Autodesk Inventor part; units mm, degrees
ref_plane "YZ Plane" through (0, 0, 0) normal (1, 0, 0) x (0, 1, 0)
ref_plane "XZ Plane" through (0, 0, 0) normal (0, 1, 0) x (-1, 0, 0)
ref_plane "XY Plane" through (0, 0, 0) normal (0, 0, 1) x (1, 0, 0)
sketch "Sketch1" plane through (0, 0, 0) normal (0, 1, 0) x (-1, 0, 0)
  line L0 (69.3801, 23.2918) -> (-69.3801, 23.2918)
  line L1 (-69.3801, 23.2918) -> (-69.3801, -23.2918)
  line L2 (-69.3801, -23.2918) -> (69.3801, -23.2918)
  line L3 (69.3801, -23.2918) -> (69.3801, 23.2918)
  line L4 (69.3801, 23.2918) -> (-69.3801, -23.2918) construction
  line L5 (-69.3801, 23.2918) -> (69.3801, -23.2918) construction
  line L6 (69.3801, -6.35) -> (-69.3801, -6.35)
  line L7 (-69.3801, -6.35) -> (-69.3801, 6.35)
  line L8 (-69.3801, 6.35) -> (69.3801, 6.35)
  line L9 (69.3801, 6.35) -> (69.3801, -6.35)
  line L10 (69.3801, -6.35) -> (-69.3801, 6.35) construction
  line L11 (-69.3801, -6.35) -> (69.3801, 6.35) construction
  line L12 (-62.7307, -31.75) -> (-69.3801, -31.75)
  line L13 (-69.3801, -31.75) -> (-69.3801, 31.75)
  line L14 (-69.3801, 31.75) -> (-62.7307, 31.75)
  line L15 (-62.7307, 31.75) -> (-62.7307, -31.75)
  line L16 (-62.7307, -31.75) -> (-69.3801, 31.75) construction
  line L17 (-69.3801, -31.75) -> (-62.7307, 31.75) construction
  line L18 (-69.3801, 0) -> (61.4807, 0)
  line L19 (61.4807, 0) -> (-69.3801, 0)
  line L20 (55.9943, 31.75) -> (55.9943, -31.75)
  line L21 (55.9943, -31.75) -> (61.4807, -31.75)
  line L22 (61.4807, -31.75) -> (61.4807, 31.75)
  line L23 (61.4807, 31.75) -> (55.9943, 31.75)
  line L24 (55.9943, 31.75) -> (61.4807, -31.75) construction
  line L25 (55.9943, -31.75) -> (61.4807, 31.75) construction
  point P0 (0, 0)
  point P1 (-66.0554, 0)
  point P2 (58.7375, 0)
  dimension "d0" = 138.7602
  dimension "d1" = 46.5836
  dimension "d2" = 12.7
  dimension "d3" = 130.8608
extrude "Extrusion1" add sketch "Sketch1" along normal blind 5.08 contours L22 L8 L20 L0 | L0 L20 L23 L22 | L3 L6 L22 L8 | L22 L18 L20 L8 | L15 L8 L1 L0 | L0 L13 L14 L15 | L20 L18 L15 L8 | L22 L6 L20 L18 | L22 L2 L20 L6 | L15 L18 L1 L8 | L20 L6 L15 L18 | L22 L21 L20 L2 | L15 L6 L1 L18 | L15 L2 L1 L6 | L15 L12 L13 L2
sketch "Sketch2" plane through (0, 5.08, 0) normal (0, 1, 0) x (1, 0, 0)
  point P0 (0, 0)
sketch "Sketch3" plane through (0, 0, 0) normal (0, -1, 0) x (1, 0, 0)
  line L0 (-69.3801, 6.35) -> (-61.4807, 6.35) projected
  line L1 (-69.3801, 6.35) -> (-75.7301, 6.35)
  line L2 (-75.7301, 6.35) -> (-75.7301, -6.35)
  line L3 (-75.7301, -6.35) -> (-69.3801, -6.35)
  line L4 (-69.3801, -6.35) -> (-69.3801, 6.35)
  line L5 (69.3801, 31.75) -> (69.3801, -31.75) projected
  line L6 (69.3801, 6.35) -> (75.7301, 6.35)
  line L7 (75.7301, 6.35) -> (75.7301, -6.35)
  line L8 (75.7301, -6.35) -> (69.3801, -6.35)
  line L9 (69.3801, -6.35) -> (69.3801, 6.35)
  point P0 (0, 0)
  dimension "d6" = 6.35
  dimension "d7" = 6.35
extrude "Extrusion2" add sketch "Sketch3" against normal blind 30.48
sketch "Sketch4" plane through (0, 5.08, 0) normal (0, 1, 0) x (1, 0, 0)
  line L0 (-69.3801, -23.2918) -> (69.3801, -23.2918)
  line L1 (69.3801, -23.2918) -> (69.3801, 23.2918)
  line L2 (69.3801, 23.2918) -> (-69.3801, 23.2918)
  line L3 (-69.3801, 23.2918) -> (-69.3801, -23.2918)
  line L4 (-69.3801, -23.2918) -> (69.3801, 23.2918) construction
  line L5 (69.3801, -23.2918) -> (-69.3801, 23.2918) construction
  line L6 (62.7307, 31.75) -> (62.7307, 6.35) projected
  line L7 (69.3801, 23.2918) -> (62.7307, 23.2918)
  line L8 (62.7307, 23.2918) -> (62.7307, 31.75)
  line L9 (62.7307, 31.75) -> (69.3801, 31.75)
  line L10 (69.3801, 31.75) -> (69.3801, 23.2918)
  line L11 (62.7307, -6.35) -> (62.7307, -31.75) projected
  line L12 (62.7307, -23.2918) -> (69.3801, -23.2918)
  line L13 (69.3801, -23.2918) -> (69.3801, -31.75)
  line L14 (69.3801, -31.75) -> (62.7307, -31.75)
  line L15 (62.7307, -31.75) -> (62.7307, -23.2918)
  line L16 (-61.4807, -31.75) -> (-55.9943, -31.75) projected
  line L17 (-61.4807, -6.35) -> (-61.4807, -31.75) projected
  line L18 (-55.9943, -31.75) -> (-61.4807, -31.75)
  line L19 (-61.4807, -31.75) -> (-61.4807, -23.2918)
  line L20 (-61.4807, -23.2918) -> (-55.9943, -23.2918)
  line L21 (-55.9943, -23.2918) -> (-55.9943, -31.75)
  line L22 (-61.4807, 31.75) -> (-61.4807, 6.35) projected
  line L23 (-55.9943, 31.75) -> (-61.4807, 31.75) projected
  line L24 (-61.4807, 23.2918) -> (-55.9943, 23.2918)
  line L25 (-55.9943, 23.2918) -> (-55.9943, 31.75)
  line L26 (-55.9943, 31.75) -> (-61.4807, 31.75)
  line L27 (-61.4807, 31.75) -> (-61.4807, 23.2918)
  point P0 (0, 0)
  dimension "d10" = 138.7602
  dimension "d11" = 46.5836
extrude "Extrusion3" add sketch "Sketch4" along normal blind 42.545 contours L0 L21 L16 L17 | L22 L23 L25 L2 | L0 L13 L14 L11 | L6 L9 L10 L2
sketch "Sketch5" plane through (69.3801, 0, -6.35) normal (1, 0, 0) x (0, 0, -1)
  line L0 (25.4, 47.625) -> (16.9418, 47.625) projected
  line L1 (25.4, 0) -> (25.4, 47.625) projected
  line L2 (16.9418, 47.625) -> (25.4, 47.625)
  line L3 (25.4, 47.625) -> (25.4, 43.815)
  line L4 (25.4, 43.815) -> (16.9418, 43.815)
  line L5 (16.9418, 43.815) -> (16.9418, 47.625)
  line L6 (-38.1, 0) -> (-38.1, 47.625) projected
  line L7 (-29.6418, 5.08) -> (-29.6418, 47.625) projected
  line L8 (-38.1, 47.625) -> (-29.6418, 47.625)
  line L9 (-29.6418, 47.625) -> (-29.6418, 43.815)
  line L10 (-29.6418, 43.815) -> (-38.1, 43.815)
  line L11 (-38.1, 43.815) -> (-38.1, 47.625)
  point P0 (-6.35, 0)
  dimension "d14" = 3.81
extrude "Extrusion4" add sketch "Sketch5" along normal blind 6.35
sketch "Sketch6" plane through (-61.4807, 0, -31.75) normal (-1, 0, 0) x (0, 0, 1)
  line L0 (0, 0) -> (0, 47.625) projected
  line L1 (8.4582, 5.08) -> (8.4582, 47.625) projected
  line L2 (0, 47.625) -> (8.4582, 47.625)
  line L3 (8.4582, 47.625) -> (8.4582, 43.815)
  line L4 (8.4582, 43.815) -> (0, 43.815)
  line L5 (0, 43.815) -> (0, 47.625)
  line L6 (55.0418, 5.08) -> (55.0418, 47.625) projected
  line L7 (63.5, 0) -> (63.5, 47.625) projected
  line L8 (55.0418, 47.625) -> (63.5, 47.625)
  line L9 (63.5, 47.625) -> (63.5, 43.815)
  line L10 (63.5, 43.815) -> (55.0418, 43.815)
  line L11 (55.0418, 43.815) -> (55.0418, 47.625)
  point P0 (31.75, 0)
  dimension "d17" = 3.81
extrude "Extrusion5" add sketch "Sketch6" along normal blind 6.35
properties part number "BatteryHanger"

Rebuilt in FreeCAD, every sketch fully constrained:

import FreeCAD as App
import Part
import Sketcher
Q = App.Units.Quantity

doc = App.newDocument("Part")
body = doc.addObject("PartDesign::Body", "Body")

# Sketch on XZ plane
sketch1 = body.newObject("Sketcher::SketchObject", "Sketch")
sketch1.AttachmentSupport = (doc.getObject("XZ_Plane"), [""])
sketch1.MapMode = "FlatFace"
sketch1.addGeometry(Part.LineSegment(App.Vector(-61, 6, 0), App.Vector(-61, 32, 0)), False)
sketch1.addGeometry(Part.LineSegment(App.Vector(-61, 32, 0), App.Vector(-56, 32, 0)), False)
sketch1.addGeometry(Part.LineSegment(App.Vector(-56, 32, 0), App.Vector(-56, 6, 0)), False)
sketch1.addGeometry(Part.LineSegment(App.Vector(-56, 6, 0), App.Vector(63, 6, 0)), False)
sketch1.addGeometry(Part.LineSegment(App.Vector(63, 6, 0), App.Vector(63, 32, 0)), False)
sketch1.addGeometry(Part.LineSegment(App.Vector(63, 32, 0), App.Vector(69, 32, 0)), False)
sketch1.addGeometry(Part.LineSegment(App.Vector(69, 32, 0), App.Vector(69, -32, 0)), False)
sketch1.addGeometry(Part.LineSegment(App.Vector(69, -32, 0), App.Vector(63, -32, 0)), False)
sketch1.addGeometry(Part.LineSegment(App.Vector(63, -32, 0), App.Vector(63, -6, 0)), False)
sketch1.addGeometry(Part.LineSegment(App.Vector(63, -6, 0), App.Vector(-56, -6, 0)), False)
sketch1.addGeometry(Part.LineSegment(App.Vector(-56, -6, 0), App.Vector(-56, -32, 0)), False)
sketch1.addGeometry(Part.LineSegment(App.Vector(-56, -32, 0), App.Vector(-61, -32, 0)), False)
sketch1.addGeometry(Part.LineSegment(App.Vector(-61, -32, 0), App.Vector(-61, -6, 0)), False)
sketch1.addGeometry(Part.LineSegment(App.Vector(-61, -6, 0), App.Vector(-69, -6, 0)), False)
sketch1.addGeometry(Part.LineSegment(App.Vector(-69, -6, 0), App.Vector(-69, 6, 0)), False)
sketch1.addGeometry(Part.LineSegment(App.Vector(-69, 6, 0), App.Vector(-61, 6, 0)), False)
sketch1.addConstraint(Sketcher.Constraint("Coincident", 0, 2, 1, 1))
sketch1.addConstraint(Sketcher.Constraint("Coincident", 1, 2, 2, 1))
sketch1.addConstraint(Sketcher.Constraint("Coincident", 2, 2, 3, 1))
sketch1.addConstraint(Sketcher.Constraint("Coincident", 3, 2, 4, 1))
sketch1.addConstraint(Sketcher.Constraint("Coincident", 4, 2, 5, 1))
sketch1.addConstraint(Sketcher.Constraint("Coincident", 5, 2, 6, 1))
sketch1.addConstraint(Sketcher.Constraint("Coincident", 6, 2, 7, 1))
sketch1.addConstraint(Sketcher.Constraint("Coincident", 7, 2, 8, 1))
sketch1.addConstraint(Sketcher.Constraint("Coincident", 8, 2, 9, 1))
sketch1.addConstraint(Sketcher.Constraint("Coincident", 9, 2, 10, 1))
sketch1.addConstraint(Sketcher.Constraint("Coincident", 10, 2, 11, 1))
sketch1.addConstraint(Sketcher.Constraint("Coincident", 11, 2, 12, 1))
sketch1.addConstraint(Sketcher.Constraint("Coincident", 12, 2, 13, 1))
sketch1.addConstraint(Sketcher.Constraint("Coincident", 13, 2, 14, 1))
sketch1.addConstraint(Sketcher.Constraint("Coincident", 14, 2, 15, 1))
sketch1.addConstraint(Sketcher.Constraint("Coincident", 15, 2, 0, 1))
sketch1.addConstraint(Sketcher.Constraint("Vertical", 0))
sketch1.addConstraint(Sketcher.Constraint("Horizontal", 1))
sketch1.addConstraint(Sketcher.Constraint("Vertical", 2))
sketch1.addConstraint(Sketcher.Constraint("Horizontal", 3))
sketch1.addConstraint(Sketcher.Constraint("Vertical", 4))
sketch1.addConstraint(Sketcher.Constraint("Horizontal", 5))
sketch1.addConstraint(Sketcher.Constraint("Vertical", 6))
sketch1.addConstraint(Sketcher.Constraint("Horizontal", 7))
sketch1.addConstraint(Sketcher.Constraint("Vertical", 8))
sketch1.addConstraint(Sketcher.Constraint("Horizontal", 9))
sketch1.addConstraint(Sketcher.Constraint("Vertical", 10))
sketch1.addConstraint(Sketcher.Constraint("Horizontal", 11))
sketch1.addConstraint(Sketcher.Constraint("Vertical", 12))
sketch1.addConstraint(Sketcher.Constraint("Horizontal", 13))
sketch1.addConstraint(Sketcher.Constraint("Vertical", 14))
sketch1.addConstraint(Sketcher.Constraint("Horizontal", 15))
sketch1.addConstraint(Sketcher.Constraint("Symmetric", 4, 2, 7, 2, -1))
sketch1.addConstraint(Sketcher.Constraint("Symmetric", 2, 2, 9, 2, -1))
sketch1.addConstraint(Sketcher.Constraint("Symmetric", 0, 2, 11, 2, -1))
sketch1.addConstraint(Sketcher.Constraint("Horizontal", 1, 2, 4, 2))
sketch1.addConstraint(Sketcher.Constraint("Horizontal", 9, 2, 12, 2))
sketch1.addConstraint(Sketcher.Constraint("Horizontal", 3, 2, 14, 2))
sketch1.addConstraint(Sketcher.Constraint("DistanceY", 14, 1, 14, 2, Q("0.5 in")))
sketch1.addConstraint(Sketcher.Constraint("DistanceY", 0, 1, 0, 2, Q("1 in")))
sketch1.addConstraint(Sketcher.Constraint("DistanceX", 0, 2, 5, 2, Q("5.152 in")))
sketch1.addConstraint(Sketcher.Constraint("DistanceX", 1, 1, 1, 2, Q("0.216 in")))
sketch1.addConstraint(Sketcher.Constraint("DistanceX", 13, 2, 13, 1, Q("0.311 in")))
sketch1.addConstraint(Sketcher.Constraint("DistanceX", 3, 1, 3, 2, Q("118.725 mm")))
sketch1.addConstraint(Sketcher.Constraint("DistanceX", 0, 2, -1, 1, Q("2.4205 in")))
pad1 = body.newObject("PartDesign::Pad", "Pad")
pad1.Profile = sketch1
pad1.Length = Q("0.2 in")
pad1.Reversed = True

# Sketch on XZ plane
sketch2 = body.newObject("Sketcher::SketchObject", "Sketch001")
sketch2.AttachmentSupport = (doc.getObject("XZ_Plane"), [""])
sketch2.MapMode = "FlatFace"
sketch2.addGeometry(Part.LineSegment(App.Vector(-69, -6, 0), App.Vector(-69, 6, 0)), False)
sketch2.addGeometry(Part.LineSegment(App.Vector(-69, 6, 0), App.Vector(-76, 6, 0)), False)
sketch2.addGeometry(Part.LineSegment(App.Vector(-76, 6, 0), App.Vector(-76, -6, 0)), False)
sketch2.addGeometry(Part.LineSegment(App.Vector(-76, -6, 0), App.Vector(-69, -6, 0)), False)
sketch2.addGeometry(Part.LineSegment(App.Vector(76, 6, 0), App.Vector(69, 6, 0)), False)
sketch2.addGeometry(Part.LineSegment(App.Vector(69, 6, 0), App.Vector(69, -6, 0)), False)
sketch2.addGeometry(Part.LineSegment(App.Vector(69, -6, 0), App.Vector(76, -6, 0)), False)
sketch2.addGeometry(Part.LineSegment(App.Vector(76, -6, 0), App.Vector(76, 6, 0)), False)
sketch2.addConstraint(Sketcher.Constraint("Coincident", 0, 2, 1, 1))
sketch2.addConstraint(Sketcher.Constraint("Coincident", 1, 2, 2, 1))
sketch2.addConstraint(Sketcher.Constraint("Coincident", 2, 2, 3, 1))
sketch2.addConstraint(Sketcher.Constraint("Coincident", 3, 2, 0, 1))
sketch2.addConstraint(Sketcher.Constraint("Coincident", 4, 2, 5, 1))
sketch2.addConstraint(Sketcher.Constraint("Coincident", 5, 2, 6, 1))
sketch2.addConstraint(Sketcher.Constraint("Coincident", 6, 2, 7, 1))
sketch2.addConstraint(Sketcher.Constraint("Coincident", 7, 2, 4, 1))
sketch2.addConstraint(Sketcher.Constraint("Vertical", 0))
sketch2.addConstraint(Sketcher.Constraint("Horizontal", 1))
sketch2.addConstraint(Sketcher.Constraint("Vertical", 2))
sketch2.addConstraint(Sketcher.Constraint("Horizontal", 3))
sketch2.addConstraint(Sketcher.Constraint("Horizontal", 4))
sketch2.addConstraint(Sketcher.Constraint("Vertical", 5))
sketch2.addConstraint(Sketcher.Constraint("Horizontal", 6))
sketch2.addConstraint(Sketcher.Constraint("Vertical", 7))
sketch2.addConstraint(Sketcher.Constraint("Symmetric", 3, 2, 4, 2, -1, 1))
sketch2.addConstraint(Sketcher.Constraint("Symmetric", 1, 2, 6, 2, -1, 1))
sketch2.addConstraint(Sketcher.Constraint("Horizontal", 1, 2, 4, 2))
sketch2.addConstraint(Sketcher.Constraint("DistanceX", 1, 2, 1, 1, Q("0.25 in")))
sketch2.addConstraint(Sketcher.Constraint("DistanceY", -1, 1, 0, 2, Q("0.25 in")))
sketch2.addConstraint(Sketcher.Constraint("DistanceX", 0, 2, 4, 2, Q("5.463 in")))
pad2 = body.newObject("PartDesign::Pad", "Pad001")
pad2.Profile = sketch2
pad2.Length = Q("1.2 in")
pad2.Reversed = True

# Sketch on XZ plane
sketch3 = body.newObject("Sketcher::SketchObject", "Sketch002")
sketch3.AttachmentSupport = (doc.getObject("XZ_Plane"), [""])
sketch3.MapMode = "FlatFace"
sketch3.AttachmentOffset = App.Placement(App.Vector(0, 0, -0.2 * 25.4), App.Rotation())
sketch3.addGeometry(Part.LineSegment(App.Vector(-56, 23, 0), App.Vector(-61, 23, 0)), False)
sketch3.addGeometry(Part.LineSegment(App.Vector(-61, 23, 0), App.Vector(-61, 32, 0)), False)
sketch3.addGeometry(Part.LineSegment(App.Vector(-61, 32, 0), App.Vector(-56, 32, 0)), False)
sketch3.addGeometry(Part.LineSegment(App.Vector(-56, 32, 0), App.Vector(-56, 23, 0)), False)
sketch3.addGeometry(Part.LineSegment(App.Vector(-61, -32, 0), App.Vector(-61, -23, 0)), False)
sketch3.addGeometry(Part.LineSegment(App.Vector(-61, -23, 0), App.Vector(-56, -23, 0)), False)
sketch3.addGeometry(Part.LineSegment(App.Vector(-56, -23, 0), App.Vector(-56, -32, 0)), False)
sketch3.addGeometry(Part.LineSegment(App.Vector(-56, -32, 0), App.Vector(-61, -32, 0)), False)
sketch3.addGeometry(Part.LineSegment(App.Vector(69, 23, 0), App.Vector(63, 23, 0)), False)
sketch3.addGeometry(Part.LineSegment(App.Vector(63, 23, 0), App.Vector(63, 32, 0)), False)
sketch3.addGeometry(Part.LineSegment(App.Vector(63, 32, 0), App.Vector(69, 32, 0)), False)
sketch3.addGeometry(Part.LineSegment(App.Vector(69, 32, 0), App.Vector(69, 23, 0)), False)
sketch3.addGeometry(Part.LineSegment(App.Vector(63, -32, 0), App.Vector(63, -23, 0)), False)
sketch3.addGeometry(Part.LineSegment(App.Vector(63, -23, 0), App.Vector(69, -23, 0)), False)
sketch3.addGeometry(Part.LineSegment(App.Vector(69, -23, 0), App.Vector(69, -32, 0)), False)
sketch3.addGeometry(Part.LineSegment(App.Vector(69, -32, 0), App.Vector(63, -32, 0)), False)
sketch3.addConstraint(Sketcher.Constraint("Coincident", 0, 2, 1, 1))
sketch3.addConstraint(Sketcher.Constraint("Coincident", 1, 2, 2, 1))
sketch3.addConstraint(Sketcher.Constraint("Coincident", 2, 2, 3, 1))
sketch3.addConstraint(Sketcher.Constraint("Coincident", 3, 2, 0, 1))
sketch3.addConstraint(Sketcher.Constraint("Coincident", 4, 2, 5, 1))
sketch3.addConstraint(Sketcher.Constraint("Coincident", 5, 2, 6, 1))
sketch3.addConstraint(Sketcher.Constraint("Coincident", 6, 2, 7, 1))
sketch3.addConstraint(Sketcher.Constraint("Coincident", 7, 2, 4, 1))
sketch3.addConstraint(Sketcher.Constraint("Coincident", 8, 2, 9, 1))
sketch3.addConstraint(Sketcher.Constraint("Coincident", 9, 2, 10, 1))
sketch3.addConstraint(Sketcher.Constraint("Coincident", 10, 2, 11, 1))
sketch3.addConstraint(Sketcher.Constraint("Coincident", 11, 2, 8, 1))
sketch3.addConstraint(Sketcher.Constraint("Coincident", 12, 2, 13, 1))
sketch3.addConstraint(Sketcher.Constraint("Coincident", 13, 2, 14, 1))
sketch3.addConstraint(Sketcher.Constraint("Coincident", 14, 2, 15, 1))
sketch3.addConstraint(Sketcher.Constraint("Coincident", 15, 2, 12, 1))
sketch3.addConstraint(Sketcher.Constraint("Horizontal", 0))
sketch3.addConstraint(Sketcher.Constraint("Vertical", 1))
sketch3.addConstraint(Sketcher.Constraint("Horizontal", 2))
sketch3.addConstraint(Sketcher.Constraint("Vertical", 3))
sketch3.addConstraint(Sketcher.Constraint("Vertical", 4))
sketch3.addConstraint(Sketcher.Constraint("Horizontal", 5))
sketch3.addConstraint(Sketcher.Constraint("Vertical", 6))
sketch3.addConstraint(Sketcher.Constraint("Horizontal", 7))
sketch3.addConstraint(Sketcher.Constraint("Horizontal", 8))
sketch3.addConstraint(Sketcher.Constraint("Vertical", 9))
sketch3.addConstraint(Sketcher.Constraint("Horizontal", 10))
sketch3.addConstraint(Sketcher.Constraint("Vertical", 11))
sketch3.addConstraint(Sketcher.Constraint("Vertical", 12))
sketch3.addConstraint(Sketcher.Constraint("Horizontal", 13))
sketch3.addConstraint(Sketcher.Constraint("Vertical", 14))
sketch3.addConstraint(Sketcher.Constraint("Horizontal", 15))
sketch3.addConstraint(Sketcher.Constraint("Symmetric", 0, 2, 4, 2, -1))
sketch3.addConstraint(Sketcher.Constraint("Symmetric", 2, 2, 6, 2, -1))
sketch3.addConstraint(Sketcher.Constraint("Symmetric", 8, 2, 12, 2, -1))
sketch3.addConstraint(Sketcher.Constraint("Symmetric", 10, 2, 14, 2, -1))
sketch3.addConstraint(Sketcher.Constraint("Horizontal", 3, 2, 8, 2))
sketch3.addConstraint(Sketcher.Constraint("Horizontal", 2, 2, 9, 2))
sketch3.addConstraint(Sketcher.Constraint("DistanceY", 4, 2, 0, 2, Q("1.834 in")))
sketch3.addConstraint(Sketcher.Constraint("DistanceY", 6, 2, 2, 2, Q("2.5 in")))
sketch3.addConstraint(Sketcher.Constraint("DistanceX", 0, 2, 0, 1, Q("0.216 in")))
sketch3.addConstraint(Sketcher.Constraint("DistanceX", 2, 2, 10, 2, Q("4.936 in")))
sketch3.addConstraint(Sketcher.Constraint("DistanceX", 8, 2, 8, 1, Q("6.6494 mm")))
sketch3.addConstraint(Sketcher.Constraint("DistanceX", 0, 2, -1, 1, Q("2.4205 in")))
pad3 = body.newObject("PartDesign::Pad", "Pad002")
pad3.Profile = sketch3
pad3.Length = Q("1.675 in")
pad3.Reversed = True

# Sketch on YZ plane
sketch4 = body.newObject("Sketcher::SketchObject", "Sketch003")
sketch4.AttachmentSupport = (doc.getObject("YZ_Plane"), [""])
sketch4.MapMode = "FlatFace"
sketch4.AttachmentOffset = App.Placement(App.Vector(0, 0, 2.7315 * 25.4), App.Rotation())
sketch4.addGeometry(Part.LineSegment(App.Vector(43.8, -31.8, 0), App.Vector(47.6, -31.8, 0)), False)
sketch4.addGeometry(Part.LineSegment(App.Vector(47.6, -31.8, 0), App.Vector(47.6, -23.3, 0)), False)
sketch4.addGeometry(Part.LineSegment(App.Vector(47.6, -23.3, 0), App.Vector(43.8, -23.3, 0)), False)
sketch4.addGeometry(Part.LineSegment(App.Vector(43.8, -23.3, 0), App.Vector(43.8, -31.8, 0)), False)
sketch4.addGeometry(Part.LineSegment(App.Vector(47.6, 31.8, 0), App.Vector(43.8, 31.8, 0)), False)
sketch4.addGeometry(Part.LineSegment(App.Vector(43.8, 31.8, 0), App.Vector(43.8, 23.3, 0)), False)
sketch4.addGeometry(Part.LineSegment(App.Vector(43.8, 23.3, 0), App.Vector(47.6, 23.3, 0)), False)
sketch4.addGeometry(Part.LineSegment(App.Vector(47.6, 23.3, 0), App.Vector(47.6, 31.8, 0)), False)
sketch4.addConstraint(Sketcher.Constraint("Coincident", 0, 2, 1, 1))
sketch4.addConstraint(Sketcher.Constraint("Coincident", 1, 2, 2, 1))
sketch4.addConstraint(Sketcher.Constraint("Coincident", 2, 2, 3, 1))
sketch4.addConstraint(Sketcher.Constraint("Coincident", 3, 2, 0, 1))
sketch4.addConstraint(Sketcher.Constraint("Coincident", 4, 2, 5, 1))
sketch4.addConstraint(Sketcher.Constraint("Coincident", 5, 2, 6, 1))
sketch4.addConstraint(Sketcher.Constraint("Coincident", 6, 2, 7, 1))
sketch4.addConstraint(Sketcher.Constraint("Coincident", 7, 2, 4, 1))
sketch4.addConstraint(Sketcher.Constraint("Horizontal", 0))
sketch4.addConstraint(Sketcher.Constraint("Vertical", 1))
sketch4.addConstraint(Sketcher.Constraint("Horizontal", 2))
sketch4.addConstraint(Sketcher.Constraint("Vertical", 3))
sketch4.addConstraint(Sketcher.Constraint("Horizontal", 4))
sketch4.addConstraint(Sketcher.Constraint("Vertical", 5))
sketch4.addConstraint(Sketcher.Constraint("Horizontal", 6))
sketch4.addConstraint(Sketcher.Constraint("Vertical", 7))
sketch4.addConstraint(Sketcher.Constraint("Symmetric", 3, 2, 4, 2, -1))
sketch4.addConstraint(Sketcher.Constraint("Symmetric", 1, 2, 6, 2, -1))
sketch4.addConstraint(Sketcher.Constraint("DistanceX", 0, 1, 0, 2, Q("0.15 in")))
sketch4.addConstraint(Sketcher.Constraint("DistanceY", 3, 2, 4, 2, Q("2.5 in")))
sketch4.addConstraint(Sketcher.Constraint("DistanceY", 1, 1, 1, 2, Q("0.333 in")))
sketch4.addConstraint(Sketcher.Constraint("DistanceX", -1, 1, 0, 2, Q("1.875 in")))
pad4 = body.newObject("PartDesign::Pad", "Pad003")
pad4.Profile = sketch4
pad4.Length = Q("0.25 in")

# Sketch on YZ plane
sketch5 = body.newObject("Sketcher::SketchObject", "Sketch004")
sketch5.AttachmentSupport = (doc.getObject("YZ_Plane"), [""])
sketch5.MapMode = "FlatFace"
sketch5.AttachmentOffset = App.Placement(App.Vector(0, 0, -2.4205 * 25.4), App.Rotation())
sketch5.addGeometry(Part.LineSegment(App.Vector(47.6, -31.8, 0), App.Vector(43.8, -31.8, 0)), False)
sketch5.addGeometry(Part.LineSegment(App.Vector(43.8, -31.8, 0), App.Vector(43.8, -23.3, 0)), False)
sketch5.addGeometry(Part.LineSegment(App.Vector(43.8, -23.3, 0), App.Vector(47.6, -23.3, 0)), False)
sketch5.addGeometry(Part.LineSegment(App.Vector(47.6, -23.3, 0), App.Vector(47.6, -31.8, 0)), False)
sketch5.addGeometry(Part.LineSegment(App.Vector(47.6, 23.3, 0), App.Vector(43.8, 23.3, 0)), False)
sketch5.addGeometry(Part.LineSegment(App.Vector(43.8, 23.3, 0), App.Vector(43.8, 31.8, 0)), False)
sketch5.addGeometry(Part.LineSegment(App.Vector(43.8, 31.8, 0), App.Vector(47.6, 31.8, 0)), False)
sketch5.addGeometry(Part.LineSegment(App.Vector(47.6, 31.8, 0), App.Vector(47.6, 23.3, 0)), False)
sketch5.addConstraint(Sketcher.Constraint("Coincident", 0, 2, 1, 1))
sketch5.addConstraint(Sketcher.Constraint("Coincident", 1, 2, 2, 1))
sketch5.addConstraint(Sketcher.Constraint("Coincident", 2, 2, 3, 1))
sketch5.addConstraint(Sketcher.Constraint("Coincident", 3, 2, 0, 1))
sketch5.addConstraint(Sketcher.Constraint("Coincident", 4, 2, 5, 1))
sketch5.addConstraint(Sketcher.Constraint("Coincident", 5, 2, 6, 1))
sketch5.addConstraint(Sketcher.Constraint("Coincident", 6, 2, 7, 1))
sketch5.addConstraint(Sketcher.Constraint("Coincident", 7, 2, 4, 1))
sketch5.addConstraint(Sketcher.Constraint("Horizontal", 0))
sketch5.addConstraint(Sketcher.Constraint("Vertical", 1))
sketch5.addConstraint(Sketcher.Constraint("Horizontal", 2))
sketch5.addConstraint(Sketcher.Constraint("Vertical", 3))
sketch5.addConstraint(Sketcher.Constraint("Horizontal", 4))
sketch5.addConstraint(Sketcher.Constraint("Vertical", 5))
sketch5.addConstraint(Sketcher.Constraint("Horizontal", 6))
sketch5.addConstraint(Sketcher.Constraint("Vertical", 7))
sketch5.addConstraint(Sketcher.Constraint("Symmetric", 1, 2, 4, 2, -1))
sketch5.addConstraint(Sketcher.Constraint("Symmetric", 3, 2, 6, 2, -1))
sketch5.addConstraint(Sketcher.Constraint("DistanceX", 0, 2, 0, 1, Q("0.15 in")))
sketch5.addConstraint(Sketcher.Constraint("DistanceY", 0, 2, 5, 2, Q("2.5 in")))
sketch5.addConstraint(Sketcher.Constraint("DistanceY", 1, 1, 1, 2, Q("0.333 in")))
sketch5.addConstraint(Sketcher.Constraint("DistanceX", -1, 1, 0, 2, Q("1.725 in")))
pad5 = body.newObject("PartDesign::Pad", "Pad004")
pad5.Profile = sketch5
pad5.Length = Q("0.25 in")
pad5.Reversed = True

doc.recompute()
